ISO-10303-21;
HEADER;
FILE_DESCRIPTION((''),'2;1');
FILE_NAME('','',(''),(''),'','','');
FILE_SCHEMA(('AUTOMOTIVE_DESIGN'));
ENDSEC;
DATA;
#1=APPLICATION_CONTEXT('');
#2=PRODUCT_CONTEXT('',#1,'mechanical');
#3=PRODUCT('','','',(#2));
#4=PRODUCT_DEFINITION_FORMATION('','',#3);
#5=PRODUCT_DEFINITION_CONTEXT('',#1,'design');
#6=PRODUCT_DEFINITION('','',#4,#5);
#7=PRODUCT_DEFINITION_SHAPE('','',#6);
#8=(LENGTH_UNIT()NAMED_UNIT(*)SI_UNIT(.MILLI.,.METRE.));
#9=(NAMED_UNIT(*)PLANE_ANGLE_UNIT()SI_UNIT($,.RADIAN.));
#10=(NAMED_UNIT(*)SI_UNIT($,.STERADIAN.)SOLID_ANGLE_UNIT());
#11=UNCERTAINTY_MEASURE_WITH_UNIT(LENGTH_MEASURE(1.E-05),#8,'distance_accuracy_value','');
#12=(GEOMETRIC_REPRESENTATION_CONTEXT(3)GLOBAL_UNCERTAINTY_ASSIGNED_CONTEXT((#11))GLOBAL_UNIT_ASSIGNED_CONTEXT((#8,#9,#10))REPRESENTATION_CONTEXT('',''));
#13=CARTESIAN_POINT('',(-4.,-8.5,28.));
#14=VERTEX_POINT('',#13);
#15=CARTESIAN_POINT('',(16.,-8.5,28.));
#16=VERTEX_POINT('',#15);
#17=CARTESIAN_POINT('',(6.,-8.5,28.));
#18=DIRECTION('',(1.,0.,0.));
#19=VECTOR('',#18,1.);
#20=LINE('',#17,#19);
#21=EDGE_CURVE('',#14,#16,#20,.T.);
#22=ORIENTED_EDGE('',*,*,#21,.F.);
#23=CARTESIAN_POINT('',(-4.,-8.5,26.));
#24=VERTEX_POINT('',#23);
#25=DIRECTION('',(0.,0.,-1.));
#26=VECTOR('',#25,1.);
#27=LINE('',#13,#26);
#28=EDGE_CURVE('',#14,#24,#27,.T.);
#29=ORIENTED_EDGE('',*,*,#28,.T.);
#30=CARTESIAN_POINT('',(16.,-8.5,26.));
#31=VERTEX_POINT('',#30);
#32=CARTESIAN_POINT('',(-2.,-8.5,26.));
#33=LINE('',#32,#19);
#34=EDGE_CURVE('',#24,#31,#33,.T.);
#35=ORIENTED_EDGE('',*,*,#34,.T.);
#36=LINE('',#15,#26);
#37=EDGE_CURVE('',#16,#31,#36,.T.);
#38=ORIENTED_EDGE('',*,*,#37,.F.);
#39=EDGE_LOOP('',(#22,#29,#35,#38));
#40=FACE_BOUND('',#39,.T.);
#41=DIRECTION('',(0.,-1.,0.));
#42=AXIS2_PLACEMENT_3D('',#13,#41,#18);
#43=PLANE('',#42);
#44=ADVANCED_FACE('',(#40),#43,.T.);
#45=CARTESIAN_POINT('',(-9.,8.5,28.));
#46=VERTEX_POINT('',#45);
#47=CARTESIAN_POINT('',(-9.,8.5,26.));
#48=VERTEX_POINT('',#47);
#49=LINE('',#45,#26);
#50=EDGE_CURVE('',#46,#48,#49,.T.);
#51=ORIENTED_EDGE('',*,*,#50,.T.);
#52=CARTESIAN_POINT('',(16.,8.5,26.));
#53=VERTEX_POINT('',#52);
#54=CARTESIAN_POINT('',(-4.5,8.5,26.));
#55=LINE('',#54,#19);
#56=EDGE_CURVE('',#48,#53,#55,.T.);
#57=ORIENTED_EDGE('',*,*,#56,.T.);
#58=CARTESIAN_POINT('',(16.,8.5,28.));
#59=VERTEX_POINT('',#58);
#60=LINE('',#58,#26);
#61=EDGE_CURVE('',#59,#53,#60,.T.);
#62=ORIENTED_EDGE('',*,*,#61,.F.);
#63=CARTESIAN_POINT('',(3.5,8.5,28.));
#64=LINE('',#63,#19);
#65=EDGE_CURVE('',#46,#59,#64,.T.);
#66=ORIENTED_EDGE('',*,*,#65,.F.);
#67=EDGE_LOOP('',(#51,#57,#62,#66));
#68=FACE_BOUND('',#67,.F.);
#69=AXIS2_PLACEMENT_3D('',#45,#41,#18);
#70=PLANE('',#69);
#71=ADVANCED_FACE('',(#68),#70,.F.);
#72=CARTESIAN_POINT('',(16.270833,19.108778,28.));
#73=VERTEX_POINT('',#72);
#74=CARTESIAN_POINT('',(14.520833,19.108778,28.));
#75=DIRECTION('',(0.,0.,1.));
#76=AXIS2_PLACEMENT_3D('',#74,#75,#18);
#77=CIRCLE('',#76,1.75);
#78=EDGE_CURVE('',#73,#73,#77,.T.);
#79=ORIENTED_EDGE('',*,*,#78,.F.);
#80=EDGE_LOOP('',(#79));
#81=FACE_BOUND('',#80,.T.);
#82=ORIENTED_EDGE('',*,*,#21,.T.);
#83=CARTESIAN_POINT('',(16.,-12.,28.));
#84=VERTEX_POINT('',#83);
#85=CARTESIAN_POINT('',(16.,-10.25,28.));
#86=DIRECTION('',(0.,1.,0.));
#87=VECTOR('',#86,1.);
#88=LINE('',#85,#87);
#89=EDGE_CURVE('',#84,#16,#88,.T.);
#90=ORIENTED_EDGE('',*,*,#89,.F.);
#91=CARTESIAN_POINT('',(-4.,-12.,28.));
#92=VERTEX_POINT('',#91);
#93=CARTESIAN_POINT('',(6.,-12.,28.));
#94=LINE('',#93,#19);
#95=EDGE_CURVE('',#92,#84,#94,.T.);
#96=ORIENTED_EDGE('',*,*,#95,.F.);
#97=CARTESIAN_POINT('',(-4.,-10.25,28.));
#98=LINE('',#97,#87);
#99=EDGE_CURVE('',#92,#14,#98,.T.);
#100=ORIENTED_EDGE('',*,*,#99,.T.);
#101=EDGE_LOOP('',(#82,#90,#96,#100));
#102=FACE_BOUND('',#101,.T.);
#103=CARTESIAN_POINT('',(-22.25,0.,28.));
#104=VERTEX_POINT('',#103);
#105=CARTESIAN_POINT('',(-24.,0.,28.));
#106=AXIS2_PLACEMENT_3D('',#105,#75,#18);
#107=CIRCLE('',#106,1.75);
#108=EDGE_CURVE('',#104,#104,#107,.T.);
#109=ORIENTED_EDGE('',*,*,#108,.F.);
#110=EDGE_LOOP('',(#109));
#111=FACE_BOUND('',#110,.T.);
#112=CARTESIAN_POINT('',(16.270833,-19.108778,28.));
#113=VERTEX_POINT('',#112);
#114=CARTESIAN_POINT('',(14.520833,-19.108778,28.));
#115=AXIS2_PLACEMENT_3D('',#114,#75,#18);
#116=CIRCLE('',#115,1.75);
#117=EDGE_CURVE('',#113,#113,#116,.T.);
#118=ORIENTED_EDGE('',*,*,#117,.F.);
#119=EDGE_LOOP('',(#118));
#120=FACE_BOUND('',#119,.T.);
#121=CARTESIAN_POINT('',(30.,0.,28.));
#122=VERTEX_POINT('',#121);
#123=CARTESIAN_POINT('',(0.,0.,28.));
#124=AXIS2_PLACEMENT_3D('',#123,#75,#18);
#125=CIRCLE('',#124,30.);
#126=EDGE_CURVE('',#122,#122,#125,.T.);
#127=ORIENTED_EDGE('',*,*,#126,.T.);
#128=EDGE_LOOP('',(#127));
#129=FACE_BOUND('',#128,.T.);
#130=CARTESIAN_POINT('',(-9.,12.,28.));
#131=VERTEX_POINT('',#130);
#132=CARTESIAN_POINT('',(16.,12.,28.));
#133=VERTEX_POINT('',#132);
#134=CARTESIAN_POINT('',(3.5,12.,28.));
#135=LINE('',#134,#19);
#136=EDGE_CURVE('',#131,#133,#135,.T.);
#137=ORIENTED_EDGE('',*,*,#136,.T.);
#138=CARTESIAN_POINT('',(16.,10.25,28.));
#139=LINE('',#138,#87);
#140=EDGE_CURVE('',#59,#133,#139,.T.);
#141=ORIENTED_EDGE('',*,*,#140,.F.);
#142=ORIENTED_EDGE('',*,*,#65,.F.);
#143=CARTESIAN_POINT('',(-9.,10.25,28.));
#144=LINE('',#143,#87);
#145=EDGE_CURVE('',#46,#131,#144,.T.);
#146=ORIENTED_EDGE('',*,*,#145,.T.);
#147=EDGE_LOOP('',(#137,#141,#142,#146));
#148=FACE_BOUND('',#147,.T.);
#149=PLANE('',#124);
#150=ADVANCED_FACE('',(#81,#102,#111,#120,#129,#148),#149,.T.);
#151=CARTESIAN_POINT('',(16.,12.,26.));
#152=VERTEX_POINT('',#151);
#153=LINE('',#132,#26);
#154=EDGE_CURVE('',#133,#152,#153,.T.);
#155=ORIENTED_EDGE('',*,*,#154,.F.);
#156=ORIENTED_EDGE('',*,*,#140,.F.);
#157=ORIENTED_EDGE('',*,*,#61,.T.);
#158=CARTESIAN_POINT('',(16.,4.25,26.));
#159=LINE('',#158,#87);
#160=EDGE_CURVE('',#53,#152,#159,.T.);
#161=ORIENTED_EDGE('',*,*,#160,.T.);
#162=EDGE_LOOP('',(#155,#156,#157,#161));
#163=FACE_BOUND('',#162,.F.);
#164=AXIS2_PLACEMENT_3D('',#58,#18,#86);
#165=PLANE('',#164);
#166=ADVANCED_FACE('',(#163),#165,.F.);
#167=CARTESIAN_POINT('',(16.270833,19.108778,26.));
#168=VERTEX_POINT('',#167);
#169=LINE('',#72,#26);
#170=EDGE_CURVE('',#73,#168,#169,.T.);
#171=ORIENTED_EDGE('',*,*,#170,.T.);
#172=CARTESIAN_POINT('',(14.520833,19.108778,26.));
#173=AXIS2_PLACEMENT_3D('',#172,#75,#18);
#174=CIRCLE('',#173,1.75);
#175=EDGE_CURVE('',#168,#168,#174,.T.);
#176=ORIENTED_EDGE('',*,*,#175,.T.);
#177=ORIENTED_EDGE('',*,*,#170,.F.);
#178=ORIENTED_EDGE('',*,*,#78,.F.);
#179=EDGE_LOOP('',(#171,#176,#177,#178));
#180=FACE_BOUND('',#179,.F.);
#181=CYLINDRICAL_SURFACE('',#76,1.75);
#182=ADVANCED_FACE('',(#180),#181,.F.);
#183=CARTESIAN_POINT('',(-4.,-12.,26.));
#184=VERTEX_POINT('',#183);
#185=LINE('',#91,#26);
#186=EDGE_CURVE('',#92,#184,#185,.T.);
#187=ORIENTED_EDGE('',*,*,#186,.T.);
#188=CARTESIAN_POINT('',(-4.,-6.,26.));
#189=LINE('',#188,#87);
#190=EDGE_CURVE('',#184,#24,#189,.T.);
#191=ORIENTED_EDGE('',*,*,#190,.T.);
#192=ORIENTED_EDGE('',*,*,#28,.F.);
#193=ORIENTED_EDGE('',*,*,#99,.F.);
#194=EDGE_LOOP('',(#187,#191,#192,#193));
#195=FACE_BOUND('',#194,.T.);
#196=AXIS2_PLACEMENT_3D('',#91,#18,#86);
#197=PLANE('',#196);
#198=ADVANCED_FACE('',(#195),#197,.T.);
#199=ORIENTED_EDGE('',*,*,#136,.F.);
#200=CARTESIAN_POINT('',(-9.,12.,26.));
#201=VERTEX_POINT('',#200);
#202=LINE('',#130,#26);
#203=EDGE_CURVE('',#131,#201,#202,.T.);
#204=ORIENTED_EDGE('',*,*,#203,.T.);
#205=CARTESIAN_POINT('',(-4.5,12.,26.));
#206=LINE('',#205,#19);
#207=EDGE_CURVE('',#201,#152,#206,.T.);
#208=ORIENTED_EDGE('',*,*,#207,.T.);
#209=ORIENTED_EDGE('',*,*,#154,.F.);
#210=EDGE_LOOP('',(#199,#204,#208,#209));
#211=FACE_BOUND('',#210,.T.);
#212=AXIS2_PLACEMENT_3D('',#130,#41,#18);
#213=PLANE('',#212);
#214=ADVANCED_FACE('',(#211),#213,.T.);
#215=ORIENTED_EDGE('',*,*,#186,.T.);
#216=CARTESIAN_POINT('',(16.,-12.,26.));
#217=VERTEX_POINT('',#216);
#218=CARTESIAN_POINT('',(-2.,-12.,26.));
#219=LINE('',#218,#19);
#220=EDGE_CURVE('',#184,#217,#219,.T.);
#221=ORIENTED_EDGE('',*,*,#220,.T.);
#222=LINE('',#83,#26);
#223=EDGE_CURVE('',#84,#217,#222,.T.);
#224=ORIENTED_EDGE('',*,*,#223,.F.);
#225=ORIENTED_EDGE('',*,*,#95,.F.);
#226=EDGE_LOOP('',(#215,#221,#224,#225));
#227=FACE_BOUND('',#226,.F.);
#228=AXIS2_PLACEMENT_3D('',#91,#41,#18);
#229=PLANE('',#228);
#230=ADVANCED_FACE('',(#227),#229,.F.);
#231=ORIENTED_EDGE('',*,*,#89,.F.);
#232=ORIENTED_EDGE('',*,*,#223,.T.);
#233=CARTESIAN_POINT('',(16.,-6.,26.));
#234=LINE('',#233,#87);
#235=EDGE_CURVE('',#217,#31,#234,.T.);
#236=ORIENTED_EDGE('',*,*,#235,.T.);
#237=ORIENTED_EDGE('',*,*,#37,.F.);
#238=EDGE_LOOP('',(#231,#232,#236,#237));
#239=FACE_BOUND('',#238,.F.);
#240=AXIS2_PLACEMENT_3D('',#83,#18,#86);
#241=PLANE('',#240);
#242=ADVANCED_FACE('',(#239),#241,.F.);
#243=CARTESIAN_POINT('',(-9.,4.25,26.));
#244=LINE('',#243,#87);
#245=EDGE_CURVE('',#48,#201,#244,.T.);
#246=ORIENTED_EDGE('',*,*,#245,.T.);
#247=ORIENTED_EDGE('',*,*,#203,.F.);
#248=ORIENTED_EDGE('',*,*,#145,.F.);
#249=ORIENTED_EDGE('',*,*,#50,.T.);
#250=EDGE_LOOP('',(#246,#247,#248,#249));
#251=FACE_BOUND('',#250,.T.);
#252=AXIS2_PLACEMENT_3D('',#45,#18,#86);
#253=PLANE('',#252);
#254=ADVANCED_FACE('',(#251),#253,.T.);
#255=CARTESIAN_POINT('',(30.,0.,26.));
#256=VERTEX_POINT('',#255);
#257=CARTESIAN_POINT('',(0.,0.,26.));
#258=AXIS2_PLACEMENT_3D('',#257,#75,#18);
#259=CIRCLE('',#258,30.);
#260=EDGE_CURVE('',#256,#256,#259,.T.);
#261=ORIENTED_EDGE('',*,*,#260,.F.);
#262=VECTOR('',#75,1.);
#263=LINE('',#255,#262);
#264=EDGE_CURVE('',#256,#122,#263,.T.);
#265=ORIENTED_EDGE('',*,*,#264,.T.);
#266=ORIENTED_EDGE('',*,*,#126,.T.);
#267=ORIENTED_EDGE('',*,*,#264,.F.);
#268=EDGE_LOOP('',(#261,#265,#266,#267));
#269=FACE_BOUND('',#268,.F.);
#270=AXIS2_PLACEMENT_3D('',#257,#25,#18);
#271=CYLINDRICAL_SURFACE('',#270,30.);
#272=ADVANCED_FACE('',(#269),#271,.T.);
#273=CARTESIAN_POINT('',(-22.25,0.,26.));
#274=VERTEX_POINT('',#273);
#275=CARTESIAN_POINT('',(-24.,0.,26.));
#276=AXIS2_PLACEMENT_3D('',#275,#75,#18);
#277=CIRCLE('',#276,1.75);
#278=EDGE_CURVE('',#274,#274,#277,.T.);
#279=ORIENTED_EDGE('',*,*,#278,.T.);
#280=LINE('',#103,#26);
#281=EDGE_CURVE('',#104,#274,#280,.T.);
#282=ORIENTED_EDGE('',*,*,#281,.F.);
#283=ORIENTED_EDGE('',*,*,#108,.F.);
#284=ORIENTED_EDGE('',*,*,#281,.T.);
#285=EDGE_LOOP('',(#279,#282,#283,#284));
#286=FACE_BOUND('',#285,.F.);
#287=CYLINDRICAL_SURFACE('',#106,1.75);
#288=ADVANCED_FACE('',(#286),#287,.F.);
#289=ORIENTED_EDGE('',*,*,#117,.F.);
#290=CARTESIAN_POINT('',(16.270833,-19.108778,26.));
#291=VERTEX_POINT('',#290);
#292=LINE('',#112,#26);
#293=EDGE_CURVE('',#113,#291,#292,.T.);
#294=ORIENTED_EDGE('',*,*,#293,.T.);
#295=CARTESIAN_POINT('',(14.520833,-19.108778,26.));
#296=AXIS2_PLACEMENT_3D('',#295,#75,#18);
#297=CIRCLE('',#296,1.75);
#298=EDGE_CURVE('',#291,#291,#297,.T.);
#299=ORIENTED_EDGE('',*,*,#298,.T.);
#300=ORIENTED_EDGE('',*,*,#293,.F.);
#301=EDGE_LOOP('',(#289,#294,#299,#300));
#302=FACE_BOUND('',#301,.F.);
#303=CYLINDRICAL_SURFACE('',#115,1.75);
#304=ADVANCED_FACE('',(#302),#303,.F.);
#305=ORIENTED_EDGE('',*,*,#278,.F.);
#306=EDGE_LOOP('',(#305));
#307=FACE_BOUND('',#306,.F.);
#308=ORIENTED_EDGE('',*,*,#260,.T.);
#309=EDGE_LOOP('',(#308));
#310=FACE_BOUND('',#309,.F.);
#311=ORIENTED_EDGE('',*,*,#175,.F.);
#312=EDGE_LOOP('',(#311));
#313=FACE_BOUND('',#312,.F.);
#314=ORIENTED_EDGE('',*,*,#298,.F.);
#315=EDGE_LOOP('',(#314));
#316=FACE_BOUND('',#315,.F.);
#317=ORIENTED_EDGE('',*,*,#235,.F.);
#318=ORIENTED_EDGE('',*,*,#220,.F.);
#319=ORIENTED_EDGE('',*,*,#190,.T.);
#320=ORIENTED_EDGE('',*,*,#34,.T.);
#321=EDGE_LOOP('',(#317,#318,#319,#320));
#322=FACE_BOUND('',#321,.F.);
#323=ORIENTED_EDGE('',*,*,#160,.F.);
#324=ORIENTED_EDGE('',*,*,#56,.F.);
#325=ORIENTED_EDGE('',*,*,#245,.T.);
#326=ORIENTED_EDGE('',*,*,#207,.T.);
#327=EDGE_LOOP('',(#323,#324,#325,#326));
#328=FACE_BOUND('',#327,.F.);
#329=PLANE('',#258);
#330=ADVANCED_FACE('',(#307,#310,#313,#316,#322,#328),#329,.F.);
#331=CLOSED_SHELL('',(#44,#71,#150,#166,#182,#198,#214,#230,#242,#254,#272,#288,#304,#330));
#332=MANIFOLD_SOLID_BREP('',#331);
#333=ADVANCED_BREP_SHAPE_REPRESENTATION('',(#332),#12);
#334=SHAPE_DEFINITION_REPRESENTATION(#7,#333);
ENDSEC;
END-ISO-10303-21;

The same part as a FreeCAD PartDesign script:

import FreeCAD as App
import Part
import Sketcher
Q = App.Units.Quantity

doc = App.newDocument("Part")
body = doc.addObject("PartDesign::Body", "Body")

# Sketch on XY plane
sketch1 = body.newObject("Sketcher::SketchObject", "Sketch")
sketch1.AttachmentSupport = (doc.getObject("XY_Plane"), [""])
sketch1.MapMode = "FlatFace"
sketch1.addGeometry(Part.Circle(App.Vector(0, 0, 0), App.Vector(0, 0, 1), 30), False)
sketch1.addConstraint([
    Sketcher.Constraint("Coincident", 0, 3, -1, 1),
    Sketcher.Constraint("Diameter", 0, Q("60 mm")),
])
pad1 = body.newObject("PartDesign::Pad", "Pad")
pad1.Profile = sketch1
pad1.Length = 2

# Sketch on XY plane
sketch2 = body.newObject("Sketcher::SketchObject", "Sketch001")
sketch2.AttachmentSupport = (doc.getObject("XY_Plane"), [""])
sketch2.MapMode = "FlatFace"
sketch2.AttachmentOffset = App.Placement(App.Vector(0, 0, 2), App.Rotation())
sketch2.addGeometry([
    Part.Circle(App.Vector(14.520833, 19.108778, 0), App.Vector(0, 0, 1), 1.75),
    Part.Circle(App.Vector(-24, 0, 0), App.Vector(0, 0, 1), 1.75),
    Part.Circle(App.Vector(14.520833, -19.108778, 0), App.Vector(0, 0, 1), 1.75),
], False)
sketch2.addConstraint([
    Sketcher.Constraint("Equal", 0, 1),
    Sketcher.Constraint("Equal", 1, 2),
    Sketcher.Constraint("Symmetric", 0, 3, 2, 3, -1),
    Sketcher.Constraint("PointOnObject", 1, 3, -1),
    Sketcher.Constraint("Diameter", 0, Q("3.5 mm")),
    Sketcher.Constraint("DistanceX", 1, 3, -1, 1, Q("24 mm")),
    Sketcher.Constraint("DistanceY", -1, 1, 0, 3, Q("19.108778 mm")),
    Sketcher.Constraint("DistanceX", -1, 1, 0, 3, Q("14.520833 mm")),
])
pocket1 = body.newObject("PartDesign::Pocket", "Pocket")
pocket1.Profile = sketch2
pocket1.Length = 5

# Sketch on XY plane
sketch3 = body.newObject("Sketcher::SketchObject", "Sketch002")
sketch3.AttachmentSupport = (doc.getObject("XY_Plane"), [""])
sketch3.MapMode = "FlatFace"
sketch3.AttachmentOffset = App.Placement(App.Vector(0, 0, 2), App.Rotation())
sketch3.addGeometry([
    Part.LineSegment(App.Vector(-9, 12, 0), App.Vector(-9, 8.5, 0)),  # 0
    Part.LineSegment(App.Vector(-9, 8.5, 0), App.Vector(16, 8.5, 0)),  # 1
    Part.LineSegment(App.Vector(16, 8.5, 0), App.Vector(16, 12, 0)),  # 2
    Part.LineSegment(App.Vector(16, 12, 0), App.Vector(-9, 12, 0)),  # 3
    Part.LineSegment(App.Vector(-4, -8.5, 0), App.Vector(-4, -12, 0)),  # 4
    Part.LineSegment(App.Vector(-4, -12, 0), App.Vector(16, -12, 0)),  # 5
    Part.LineSegment(App.Vector(16, -12, 0), App.Vector(16, -8.5, 0)),  # 6
    Part.LineSegment(App.Vector(16, -8.5, 0), App.Vector(-4, -8.5, 0)),  # 7
], False)
sketch3.addConstraint([
    Sketcher.Constraint("Coincident", 0, 2, 1, 1),
    Sketcher.Constraint("Coincident", 1, 2, 2, 1),
    Sketcher.Constraint("Coincident", 2, 2, 3, 1),
    Sketcher.Constraint("Coincident", 3, 2, 0, 1),
    Sketcher.Constraint("Coincident", 4, 2, 5, 1),
    Sketcher.Constraint("Coincident", 5, 2, 6, 1),
    Sketcher.Constraint("Coincident", 6, 2, 7, 1),
    Sketcher.Constraint("Coincident", 7, 2, 4, 1),
    Sketcher.Constraint("Vertical", 0),
    Sketcher.Constraint("Horizontal", 1),
    Sketcher.Constraint("Vertical", 2),
    Sketcher.Constraint("Horizontal", 3),
    Sketcher.Constraint("Vertical", 4),
    Sketcher.Constraint("Horizontal", 5),
    Sketcher.Constraint("Vertical", 6),
    Sketcher.Constraint("Horizontal", 7),
    Sketcher.Constraint("Symmetric", 2, 2, 5, 2, -1),
    Sketcher.Constraint("Equal", 2, 4),
    Sketcher.Constraint("DistanceX", 1, 1, 1, 2, Q("25 mm")),
    Sketcher.Constraint("DistanceX", 5, 1, 5, 2, Q("20 mm")),
    Sketcher.Constraint("DistanceY", 0, 2, 0, 1, Q("3.5 mm")),
    Sketcher.Constraint("DistanceX", 0, 2, -1, 1, Q("9 mm")),
    Sketcher.Constraint("DistanceY", -1, 1, 2, 2, Q("12 mm")),
])
pocket2 = body.newObject("PartDesign::Pocket", "Pocket001")
pocket2.Profile = sketch3
pocket2.Length = 5
body2 = doc.addObject("PartDesign::Body", "Body001")
doc.recompute()

body.Placement = App.Placement(App.Vector(0, 0, 26), App.Rotation(App.Vector(0, 0, 1), 0))
boolean = body2.newObject("PartDesign::Boolean", "Boolean")
boolean.Type = "Fuse"
boolean.addObjects([body])

doc.recompute()
